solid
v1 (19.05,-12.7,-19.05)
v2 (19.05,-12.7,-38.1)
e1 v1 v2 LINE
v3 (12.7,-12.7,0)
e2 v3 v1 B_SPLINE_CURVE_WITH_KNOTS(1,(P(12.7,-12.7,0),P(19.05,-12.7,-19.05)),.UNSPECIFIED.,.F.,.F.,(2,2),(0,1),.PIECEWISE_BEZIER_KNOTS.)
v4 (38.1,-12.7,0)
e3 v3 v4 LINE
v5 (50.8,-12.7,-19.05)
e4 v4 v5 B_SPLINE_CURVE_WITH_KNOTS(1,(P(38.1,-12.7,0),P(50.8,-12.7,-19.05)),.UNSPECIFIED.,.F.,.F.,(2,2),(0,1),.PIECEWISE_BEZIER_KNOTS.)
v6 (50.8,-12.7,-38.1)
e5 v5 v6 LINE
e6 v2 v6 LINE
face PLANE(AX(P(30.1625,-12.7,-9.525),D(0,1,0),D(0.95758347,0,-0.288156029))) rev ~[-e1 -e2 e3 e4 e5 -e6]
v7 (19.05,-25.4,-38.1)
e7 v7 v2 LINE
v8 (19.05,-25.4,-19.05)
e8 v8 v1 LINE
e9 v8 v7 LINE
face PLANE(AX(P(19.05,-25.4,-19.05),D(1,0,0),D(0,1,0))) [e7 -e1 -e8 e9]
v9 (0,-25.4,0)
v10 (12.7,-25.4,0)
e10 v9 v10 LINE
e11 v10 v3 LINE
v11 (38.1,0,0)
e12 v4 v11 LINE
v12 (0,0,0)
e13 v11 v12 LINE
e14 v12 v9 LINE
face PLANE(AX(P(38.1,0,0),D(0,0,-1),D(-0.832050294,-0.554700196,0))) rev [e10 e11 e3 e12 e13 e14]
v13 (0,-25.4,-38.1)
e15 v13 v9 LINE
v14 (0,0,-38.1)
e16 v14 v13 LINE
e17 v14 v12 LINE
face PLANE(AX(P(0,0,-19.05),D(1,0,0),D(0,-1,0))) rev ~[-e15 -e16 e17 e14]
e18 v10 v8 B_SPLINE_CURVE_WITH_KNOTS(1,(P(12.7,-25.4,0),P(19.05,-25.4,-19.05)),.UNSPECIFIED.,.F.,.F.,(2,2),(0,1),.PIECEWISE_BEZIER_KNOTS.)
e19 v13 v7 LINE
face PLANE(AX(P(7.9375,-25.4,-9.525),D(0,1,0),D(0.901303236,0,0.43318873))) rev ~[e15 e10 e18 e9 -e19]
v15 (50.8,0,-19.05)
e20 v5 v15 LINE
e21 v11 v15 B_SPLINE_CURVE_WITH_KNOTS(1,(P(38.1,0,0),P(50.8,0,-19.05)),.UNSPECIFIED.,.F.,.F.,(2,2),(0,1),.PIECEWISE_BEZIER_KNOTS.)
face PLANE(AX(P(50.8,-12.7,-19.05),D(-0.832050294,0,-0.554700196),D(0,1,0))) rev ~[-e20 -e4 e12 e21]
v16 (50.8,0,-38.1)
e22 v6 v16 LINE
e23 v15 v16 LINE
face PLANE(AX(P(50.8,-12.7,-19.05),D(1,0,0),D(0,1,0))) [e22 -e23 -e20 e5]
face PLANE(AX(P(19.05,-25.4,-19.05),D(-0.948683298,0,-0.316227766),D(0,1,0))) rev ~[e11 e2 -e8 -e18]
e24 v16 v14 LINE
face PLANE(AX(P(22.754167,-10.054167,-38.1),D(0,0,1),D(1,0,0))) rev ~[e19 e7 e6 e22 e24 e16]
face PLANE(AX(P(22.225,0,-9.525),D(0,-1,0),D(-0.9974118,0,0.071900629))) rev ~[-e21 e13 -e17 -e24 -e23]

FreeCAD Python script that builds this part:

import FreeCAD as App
import Part
import Sketcher
from FreeCAD import Vector
Q = App.Units.Quantity


def add_polygon(sketch, points):
    """Adds a closed chain of lines whose ends are joined by coincident constraints."""
    first, n = sketch.GeometryCount, len(points)
    for a, b in zip(points, points[1:] + points[:1]):
        sketch.addGeometry(Part.LineSegment(App.Vector(*a, 0), App.Vector(*b, 0)), False)
    for i in range(n):
        sketch.addConstraint(Sketcher.Constraint("Coincident", first + i, 2, first + (i + 1) % n, 1))

doc = App.newDocument("Part")
body = doc.addObject("PartDesign::Body", "Body")

# Sketch on XY plane
sketch1 = body.newObject("Sketcher::SketchObject", "Sketch")
sketch1.AttachmentSupport = (doc.getObject("XY_Plane"), [""])
sketch1.MapMode = "FlatFace"
sketch1.AttachmentOffset = App.Placement(Vector(0, 0, -0.75 * 25.4), App.Rotation())
add_polygon(sketch1, [(51, 0), (0, 0), (0, -25), (19, -25), (19, -13), (51, -13)])  # lines 0-5
sketch1.addConstraint([
    Sketcher.Constraint("Horizontal", 0),
    Sketcher.Constraint("Vertical", 1),
    Sketcher.Constraint("Horizontal", 2),
    Sketcher.Constraint("Vertical", 3),
    Sketcher.Constraint("Horizontal", 4),
    Sketcher.Constraint("Vertical", 5),
    Sketcher.Constraint("Coincident", 0, 2, -1, 1),
    Sketcher.Constraint("Equal", 3, 5),
    Sketcher.Constraint("DistanceX", 0, 2, 0, 1, Q("2 in")),
    Sketcher.Constraint("DistanceY", 1, 2, 1, 1, Q("1 in")),
    Sketcher.Constraint("DistanceX", 2, 1, 2, 2, Q("0.75 in")),
])
pad1 = body.newObject("PartDesign::Pad", "Pad")
pad1.Profile = sketch1
pad1.Length = Q("0.75 in")
pad1.Reversed = True

# Sketch on XY plane
sketch2 = body.newObject("Sketcher::SketchObject", "Sketch001")
sketch2.AttachmentSupport = (doc.getObject("XY_Plane"), [""])
sketch2.MapMode = "FlatFace"
add_polygon(sketch2, [(38, 0), (0, 0), (0, -25), (13, -25), (13, -13), (38, -13)])  # lines 0-5
sketch2.addConstraint([
    Sketcher.Constraint("Horizontal", 0),
    Sketcher.Constraint("Vertical", 1),
    Sketcher.Constraint("Horizontal", 2),
    Sketcher.Constraint("Vertical", 3),
    Sketcher.Constraint("Horizontal", 4),
    Sketcher.Constraint("Vertical", 5),
    Sketcher.Constraint("Coincident", 0, 2, -1, 1),
    Sketcher.Constraint("Equal", 4, 1),
    Sketcher.Constraint("Equal", 2, 3),
    Sketcher.Constraint("Equal", 3, 5),
    Sketcher.Constraint("DistanceX", 4, 1, 4, 2, Q("1 in")),
])

# Sketch on XY plane
sketch3 = body.newObject("Sketcher::SketchObject", "Sketch002")
sketch3.AttachmentSupport = (doc.getObject("XY_Plane"), [""])
sketch3.MapMode = "FlatFace"
sketch3.AttachmentOffset = App.Placement(Vector(0, 0, -0.75 * 25.4), App.Rotation())
add_polygon(sketch3, [(51, 0), (0, 0), (0, -25), (19, -25), (19, -13), (51, -13)])  # lines 0-5
sketch3.addConstraint([
    Sketcher.Constraint("Horizontal", 0),
    Sketcher.Constraint("Vertical", 1),
    Sketcher.Constraint("Horizontal", 2),
    Sketcher.Constraint("Vertical", 3),
    Sketcher.Constraint("Horizontal", 4),
    Sketcher.Constraint("Vertical", 5),
    Sketcher.Constraint("Coincident", 0, 2, -1, 1),
    Sketcher.Constraint("Equal", 3, 5),
    Sketcher.Constraint("DistanceX", 0, 2, 0, 1, Q("2 in")),
    Sketcher.Constraint("DistanceY", 1, 2, 1, 1, Q("1 in")),
    Sketcher.Constraint("DistanceX", 2, 1, 2, 2, Q("0.75 in")),
])

additiveloft = body.newObject("PartDesign::AdditiveLoft", "AdditiveLoft")
additiveloft.Profile = sketch2
additiveloft.Sections = [sketch3]

doc.recompute()
